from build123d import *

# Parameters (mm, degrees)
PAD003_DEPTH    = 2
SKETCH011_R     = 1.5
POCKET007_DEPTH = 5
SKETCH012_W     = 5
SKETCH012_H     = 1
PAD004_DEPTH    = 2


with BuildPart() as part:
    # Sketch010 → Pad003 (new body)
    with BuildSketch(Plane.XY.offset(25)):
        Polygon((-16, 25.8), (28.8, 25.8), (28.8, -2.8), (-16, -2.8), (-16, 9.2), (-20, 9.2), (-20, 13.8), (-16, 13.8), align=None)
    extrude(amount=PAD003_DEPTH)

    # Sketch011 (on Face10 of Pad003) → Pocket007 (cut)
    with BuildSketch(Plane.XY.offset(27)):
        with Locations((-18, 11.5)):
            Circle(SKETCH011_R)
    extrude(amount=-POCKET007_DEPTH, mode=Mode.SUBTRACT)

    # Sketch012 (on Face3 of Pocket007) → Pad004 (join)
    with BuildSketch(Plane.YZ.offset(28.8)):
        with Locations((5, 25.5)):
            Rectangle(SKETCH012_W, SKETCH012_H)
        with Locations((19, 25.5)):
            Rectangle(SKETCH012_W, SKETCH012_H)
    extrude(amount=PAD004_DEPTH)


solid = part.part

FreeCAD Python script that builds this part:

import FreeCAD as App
import Part
import Sketcher

V = App.Vector


def add_polygon(sketch, points):
    """Adds a closed chain of lines whose ends are joined by coincident constraints."""
    first, n = sketch.GeometryCount, len(points)
    for a, b in zip(points, points[1:] + points[:1]):
        sketch.addGeometry(Part.LineSegment(App.Vector(*a, 0), App.Vector(*b, 0)), False)
    for i in range(n):
        sketch.addConstraint(Sketcher.Constraint("Coincident", first + i, 2, first + (i + 1) % n, 1))

doc = App.newDocument("Part")
body = doc.addObject("PartDesign::Body", "Body")

# Sketch on XY plane
sketch1 = body.newObject("Sketcher::SketchObject", "Sketch")
sketch1.AttachmentSupport = (doc.getObject("XY_Plane"), [""])
sketch1.MapMode = "FlatFace"
sketch1.AttachmentOffset = App.Placement(V(0, 0, 25), App.Rotation())
add_polygon(sketch1, [(28.8, 25.8), (-16, 25.8), (-16, 13.8), (-20, 13.8), (-20, 9.2), (-16, 9.2), (-16, -2.8), (28.8, -2.8)])  # lines 0-7
sketch1.addConstraint([
    Sketcher.Constraint("Horizontal", 0),
    Sketcher.Constraint("Vertical", 1),
    Sketcher.Constraint("Horizontal", 2),
    Sketcher.Constraint("Vertical", 3),
    Sketcher.Constraint("Horizontal", 4),
    Sketcher.Constraint("Vertical", 5),
    Sketcher.Constraint("Horizontal", 6),
    Sketcher.Constraint("Vertical", 7),
    Sketcher.Constraint("Vertical", 1, 2, 4, 2),
    Sketcher.Constraint("Equal", 1, 5),
    Sketcher.Constraint("DistanceX", 2, 2, 2, 1, 4.0),
    Sketcher.Constraint("DistanceY", 1, 2, 1, 1, 12.0),
    Sketcher.Constraint("DistanceX", 0, 2, 0, 1, 44.8),
    Sketcher.Constraint("DistanceY", 3, 2, 3, 1, 4.6),
    Sketcher.Constraint("DistanceX", 0, 2, -1, 1, 16.0),
    Sketcher.Constraint("DistanceY", -1, 1, 0, 2, 25.8),
])
pad1 = body.newObject("PartDesign::Pad", "Pad")
pad1.Profile = sketch1
pad1.Length = 2

# Sketch on XY plane
sketch2 = body.newObject("Sketcher::SketchObject", "Sketch001")
sketch2.AttachmentSupport = (doc.getObject("XY_Plane"), [""])
sketch2.MapMode = "FlatFace"
sketch2.AttachmentOffset = App.Placement(V(0, 0, 27), App.Rotation())
sketch2.addGeometry(Part.Circle(V(-18, 11.5, 0), V(0, 0, 1), 1.5), False)
sketch2.addConstraint([
    Sketcher.Constraint("Diameter", 0, 3.0),
    Sketcher.Constraint("DistanceX", 0, 3, -1, 1, 18.0),
    Sketcher.Constraint("DistanceY", -1, 1, 0, 3, 11.5),
])
pocket1 = body.newObject("PartDesign::Pocket", "Pocket")
pocket1.Profile = sketch2
pocket1.Length = 5

# Sketch on YZ plane
sketch3 = body.newObject("Sketcher::SketchObject", "Sketch002")
sketch3.AttachmentSupport = (doc.getObject("YZ_Plane"), [""])
sketch3.MapMode = "FlatFace"
sketch3.AttachmentOffset = App.Placement(V(0, 0, 28.8), App.Rotation())
add_polygon(sketch3, [(2.5, 26), (2.5, 25), (7.5, 25), (7.5, 26)])  # lines 0-3
add_polygon(sketch3, [(16.5, 26), (16.5, 25), (21.5, 25), (21.5, 26)])  # lines 4-7
sketch3.addConstraint([
    Sketcher.Constraint("Vertical", 0),
    Sketcher.Constraint("Horizontal", 1),
    Sketcher.Constraint("Vertical", 2),
    Sketcher.Constraint("Horizontal", 3),
    Sketcher.Constraint("Vertical", 4),
    Sketcher.Constraint("Horizontal", 5),
    Sketcher.Constraint("Vertical", 6),
    Sketcher.Constraint("Horizontal", 7),
    Sketcher.Constraint("Horizontal", 1, 2, 4, 2),
    Sketcher.Constraint("Horizontal", 3, 2, 6, 2),
    Sketcher.Constraint("Equal", 3, 5),
    Sketcher.Constraint("DistanceX", 1, 1, 1, 2, 5.0),
    Sketcher.Constraint("DistanceY", 0, 2, 0, 1, 1.0),
    Sketcher.Constraint("DistanceY", -1, 1, 0, 2, 25.0),
    Sketcher.Constraint("DistanceX", 1, 2, 4, 2, 9.0),
    Sketcher.Constraint("DistanceX", -1, 1, 0, 2, 2.5),
])
pad2 = body.newObject("PartDesign::Pad", "Pad001")
pad2.Profile = sketch3
pad2.Length = 2

doc.recompute()
